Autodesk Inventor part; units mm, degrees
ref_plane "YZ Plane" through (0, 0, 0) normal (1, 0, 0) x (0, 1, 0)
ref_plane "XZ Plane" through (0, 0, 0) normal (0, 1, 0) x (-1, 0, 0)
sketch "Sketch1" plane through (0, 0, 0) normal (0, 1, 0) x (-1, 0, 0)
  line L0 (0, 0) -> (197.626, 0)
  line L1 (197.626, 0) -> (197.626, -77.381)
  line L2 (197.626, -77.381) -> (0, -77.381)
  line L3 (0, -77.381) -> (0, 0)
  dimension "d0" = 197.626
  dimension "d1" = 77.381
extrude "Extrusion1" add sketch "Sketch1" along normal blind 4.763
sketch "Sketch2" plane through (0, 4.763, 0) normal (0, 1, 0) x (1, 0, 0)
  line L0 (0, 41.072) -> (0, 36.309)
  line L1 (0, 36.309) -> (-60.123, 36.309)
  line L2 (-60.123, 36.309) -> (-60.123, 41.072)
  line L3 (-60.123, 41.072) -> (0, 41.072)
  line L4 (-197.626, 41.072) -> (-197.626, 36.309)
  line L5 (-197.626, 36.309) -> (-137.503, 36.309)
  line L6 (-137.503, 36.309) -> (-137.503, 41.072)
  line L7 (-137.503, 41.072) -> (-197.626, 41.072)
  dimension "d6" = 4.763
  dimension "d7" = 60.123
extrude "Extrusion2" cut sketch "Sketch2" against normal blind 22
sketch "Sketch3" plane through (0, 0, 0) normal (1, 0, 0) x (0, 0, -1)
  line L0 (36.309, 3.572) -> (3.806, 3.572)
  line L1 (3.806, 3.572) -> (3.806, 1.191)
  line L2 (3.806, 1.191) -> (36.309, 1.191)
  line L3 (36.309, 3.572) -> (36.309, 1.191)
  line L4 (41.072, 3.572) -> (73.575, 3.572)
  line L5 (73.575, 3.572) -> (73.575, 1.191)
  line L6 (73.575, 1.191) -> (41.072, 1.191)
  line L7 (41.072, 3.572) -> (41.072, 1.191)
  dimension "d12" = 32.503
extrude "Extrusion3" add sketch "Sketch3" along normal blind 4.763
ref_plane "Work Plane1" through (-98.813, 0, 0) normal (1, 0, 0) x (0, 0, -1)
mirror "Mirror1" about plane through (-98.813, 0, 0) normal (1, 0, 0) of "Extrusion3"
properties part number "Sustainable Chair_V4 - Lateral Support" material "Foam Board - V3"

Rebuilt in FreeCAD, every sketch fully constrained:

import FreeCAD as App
import Part
import Sketcher

V = App.Vector
Q = App.Units.Quantity

doc = App.newDocument("Part")
body = doc.addObject("PartDesign::Body", "Body")

sketch1 = body.newObject("Sketcher::SketchObject", "Sketch")
sketch1.AttachmentSupport = (doc.getObject("XZ_Plane"), [""])
sketch1.MapMode = "FlatFace"
sketch1.addGeometry(Part.LineSegment(V(-198, 0, 0), V(0, 0, 0)), False)
sketch1.addGeometry(Part.LineSegment(V(0, 0, 0), V(0, -77, 0)), False)
sketch1.addGeometry(Part.LineSegment(V(0, -77, 0), V(-198, -77, 0)), False)
sketch1.addGeometry(Part.LineSegment(V(-198, -77, 0), V(-198, 0, 0)), False)
sketch1.addConstraint(Sketcher.Constraint("Coincident", 0, 2, 1, 1))
sketch1.addConstraint(Sketcher.Constraint("Coincident", 1, 2, 2, 1))
sketch1.addConstraint(Sketcher.Constraint("Coincident", 2, 2, 3, 1))
sketch1.addConstraint(Sketcher.Constraint("Coincident", 3, 2, 0, 1))
sketch1.addConstraint(Sketcher.Constraint("Horizontal", 0))
sketch1.addConstraint(Sketcher.Constraint("Vertical", 1))
sketch1.addConstraint(Sketcher.Constraint("Horizontal", 2))
sketch1.addConstraint(Sketcher.Constraint("Vertical", 3))
sketch1.addConstraint(Sketcher.Constraint("Coincident", 0, 2, -1, 1))
sketch1.addConstraint(Sketcher.Constraint("DistanceX", 0, 1, 0, 2, Q("197.626 mm")))
sketch1.addConstraint(Sketcher.Constraint("DistanceY", 1, 2, 1, 1, Q("77.381 mm")))
pad1 = body.newObject("PartDesign::Pad", "Pad")
pad1.Profile = sketch1
pad1.Length = 4.763
pad1.Reversed = True

sketch2 = body.newObject("Sketcher::SketchObject", "Sketch001")
sketch2.AttachmentSupport = (doc.getObject("XZ_Plane"), [""])
sketch2.MapMode = "FlatFace"
sketch2.AttachmentOffset = App.Placement(V(0, 0, -4.763), App.Rotation())
sketch2.addGeometry(Part.LineSegment(V(0, -36.3, 0), V(0, -41.1, 0)), False)
sketch2.addGeometry(Part.LineSegment(V(0, -41.1, 0), V(-60.1, -41.1, 0)), False)
sketch2.addGeometry(Part.LineSegment(V(-60.1, -41.1, 0), V(-60.1, -36.3, 0)), False)
sketch2.addGeometry(Part.LineSegment(V(-60.1, -36.3, 0), V(0, -36.3, 0)), False)
sketch2.addGeometry(Part.LineSegment(V(-137.5, -41.1, 0), V(-197.6, -41.1, 0)), False)
sketch2.addGeometry(Part.LineSegment(V(-197.6, -41.1, 0), V(-197.6, -36.3, 0)), False)
sketch2.addGeometry(Part.LineSegment(V(-197.6, -36.3, 0), V(-137.5, -36.3, 0)), False)
sketch2.addGeometry(Part.LineSegment(V(-137.5, -36.3, 0), V(-137.5, -41.1, 0)), False)
sketch2.addConstraint(Sketcher.Constraint("Coincident", 0, 2, 1, 1))
sketch2.addConstraint(Sketcher.Constraint("Coincident", 1, 2, 2, 1))
sketch2.addConstraint(Sketcher.Constraint("Coincident", 2, 2, 3, 1))
sketch2.addConstraint(Sketcher.Constraint("Coincident", 3, 2, 0, 1))
sketch2.addConstraint(Sketcher.Constraint("Coincident", 4, 2, 5, 1))
sketch2.addConstraint(Sketcher.Constraint("Coincident", 5, 2, 6, 1))
sketch2.addConstraint(Sketcher.Constraint("Coincident", 6, 2, 7, 1))
sketch2.addConstraint(Sketcher.Constraint("Coincident", 7, 2, 4, 1))
sketch2.addConstraint(Sketcher.Constraint("Vertical", 0))
sketch2.addConstraint(Sketcher.Constraint("Horizontal", 1))
sketch2.addConstraint(Sketcher.Constraint("Vertical", 2))
sketch2.addConstraint(Sketcher.Constraint("Horizontal", 3))
sketch2.addConstraint(Sketcher.Constraint("Horizontal", 4))
sketch2.addConstraint(Sketcher.Constraint("Vertical", 5))
sketch2.addConstraint(Sketcher.Constraint("Horizontal", 6))
sketch2.addConstraint(Sketcher.Constraint("Vertical", 7))
sketch2.addConstraint(Sketcher.Constraint("PointOnObject", 0, 2, -2))
sketch2.addConstraint(Sketcher.Constraint("Horizontal", 1, 2, 4, 2))
sketch2.addConstraint(Sketcher.Constraint("Horizontal", 3, 2, 5, 2))
sketch2.addConstraint(Sketcher.Constraint("Equal", 3, 4))
sketch2.addConstraint(Sketcher.Constraint("DistanceX", 1, 2, 1, 1, Q("60.123 mm")))
sketch2.addConstraint(Sketcher.Constraint("DistanceY", 0, 2, 0, 1, Q("4.763 mm")))
sketch2.addConstraint(Sketcher.Constraint("DistanceX", 6, 2, 2, 2, Q("77.38 mm")))
sketch2.addConstraint(Sketcher.Constraint("DistanceY", 0, 2, -1, 1, Q("41.072 mm")))
pocket1 = body.newObject("PartDesign::Pocket", "Pocket")
pocket1.Profile = sketch2
pocket1.Length = 22
pocket1.Reversed = True

sketch3 = body.newObject("Sketcher::SketchObject", "Sketch002")
sketch3.AttachmentSupport = (doc.getObject("YZ_Plane"), [""])
sketch3.MapMode = "FlatFace"
sketch3.addGeometry(Part.LineSegment(V(1.2, -36.3, 0), V(3.6, -36.3, 0)), False)
sketch3.addGeometry(Part.LineSegment(V(3.6, -36.3, 0), V(3.6, -3.8, 0)), False)
sketch3.addGeometry(Part.LineSegment(V(3.6, -3.8, 0), V(1.2, -3.8, 0)), False)
sketch3.addGeometry(Part.LineSegment(V(1.2, -3.8, 0), V(1.2, -36.3, 0)), False)
sketch3.addGeometry(Part.LineSegment(V(3.6, -73.6, 0), V(3.6, -41.1, 0)), False)
sketch3.addGeometry(Part.LineSegment(V(3.6, -41.1, 0), V(1.2, -41.1, 0)), False)
sketch3.addGeometry(Part.LineSegment(V(1.2, -41.1, 0), V(1.2, -73.6, 0)), False)
sketch3.addGeometry(Part.LineSegment(V(1.2, -73.6, 0), V(3.6, -73.6, 0)), False)
sketch3.addConstraint(Sketcher.Constraint("Coincident", 0, 2, 1, 1))
sketch3.addConstraint(Sketcher.Constraint("Coincident", 1, 2, 2, 1))
sketch3.addConstraint(Sketcher.Constraint("Coincident", 2, 2, 3, 1))
sketch3.addConstraint(Sketcher.Constraint("Coincident", 3, 2, 0, 1))
sketch3.addConstraint(Sketcher.Constraint("Coincident", 4, 2, 5, 1))
sketch3.addConstraint(Sketcher.Constraint("Coincident", 5, 2, 6, 1))
sketch3.addConstraint(Sketcher.Constraint("Coincident", 6, 2, 7, 1))
sketch3.addConstraint(Sketcher.Constraint("Coincident", 7, 2, 4, 1))
sketch3.addConstraint(Sketcher.Constraint("Horizontal", 0))
sketch3.addConstraint(Sketcher.Constraint("Vertical", 1))
sketch3.addConstraint(Sketcher.Constraint("Horizontal", 2))
sketch3.addConstraint(Sketcher.Constraint("Vertical", 3))
sketch3.addConstraint(Sketcher.Constraint("Vertical", 4))
sketch3.addConstraint(Sketcher.Constraint("Horizontal", 5))
sketch3.addConstraint(Sketcher.Constraint("Vertical", 6))
sketch3.addConstraint(Sketcher.Constraint("Horizontal", 7))
sketch3.addConstraint(Sketcher.Constraint("Vertical", 1, 2, 4, 2))
sketch3.addConstraint(Sketcher.Constraint("Vertical", 3, 2, 5, 2))
sketch3.addConstraint(Sketcher.Constraint("Equal", 3, 4))
sketch3.addConstraint(Sketcher.Constraint("DistanceY", 1, 1, 1, 2, Q("32.503 mm")))
sketch3.addConstraint(Sketcher.Constraint("DistanceX", 0, 1, 0, 2, Q("2.381 mm")))
sketch3.addConstraint(Sketcher.Constraint("DistanceX", -1, 1, 0, 2, Q("3.572 mm")))
sketch3.addConstraint(Sketcher.Constraint("DistanceY", 0, 2, -1, 1, Q("36.309 mm")))
sketch3.addConstraint(Sketcher.Constraint("DistanceY", 4, 2, -1, 1, Q("41.072 mm")))
pad2 = body.newObject("PartDesign::Pad", "Pad001")
pad2.Profile = sketch3
pad2.Length = 4.763
doc.recompute()

datumplane = body.newObject("PartDesign::Plane", "DatumPlane")
datumplane.AttachmentSupport = (doc.getObject("YZ_Plane"), [""])
datumplane.MapMode = "FlatFace"
datumplane.AttachmentOffset = App.Placement(V(0, 0, -98.813), App.Rotation())
mirrored = body.newObject("PartDesign::Mirrored", "Mirrored")
mirrored.Originals = [pad2]
mirrored.MirrorPlane = (datumplane, [""])
body.Tip = mirrored

doc.recompute()
